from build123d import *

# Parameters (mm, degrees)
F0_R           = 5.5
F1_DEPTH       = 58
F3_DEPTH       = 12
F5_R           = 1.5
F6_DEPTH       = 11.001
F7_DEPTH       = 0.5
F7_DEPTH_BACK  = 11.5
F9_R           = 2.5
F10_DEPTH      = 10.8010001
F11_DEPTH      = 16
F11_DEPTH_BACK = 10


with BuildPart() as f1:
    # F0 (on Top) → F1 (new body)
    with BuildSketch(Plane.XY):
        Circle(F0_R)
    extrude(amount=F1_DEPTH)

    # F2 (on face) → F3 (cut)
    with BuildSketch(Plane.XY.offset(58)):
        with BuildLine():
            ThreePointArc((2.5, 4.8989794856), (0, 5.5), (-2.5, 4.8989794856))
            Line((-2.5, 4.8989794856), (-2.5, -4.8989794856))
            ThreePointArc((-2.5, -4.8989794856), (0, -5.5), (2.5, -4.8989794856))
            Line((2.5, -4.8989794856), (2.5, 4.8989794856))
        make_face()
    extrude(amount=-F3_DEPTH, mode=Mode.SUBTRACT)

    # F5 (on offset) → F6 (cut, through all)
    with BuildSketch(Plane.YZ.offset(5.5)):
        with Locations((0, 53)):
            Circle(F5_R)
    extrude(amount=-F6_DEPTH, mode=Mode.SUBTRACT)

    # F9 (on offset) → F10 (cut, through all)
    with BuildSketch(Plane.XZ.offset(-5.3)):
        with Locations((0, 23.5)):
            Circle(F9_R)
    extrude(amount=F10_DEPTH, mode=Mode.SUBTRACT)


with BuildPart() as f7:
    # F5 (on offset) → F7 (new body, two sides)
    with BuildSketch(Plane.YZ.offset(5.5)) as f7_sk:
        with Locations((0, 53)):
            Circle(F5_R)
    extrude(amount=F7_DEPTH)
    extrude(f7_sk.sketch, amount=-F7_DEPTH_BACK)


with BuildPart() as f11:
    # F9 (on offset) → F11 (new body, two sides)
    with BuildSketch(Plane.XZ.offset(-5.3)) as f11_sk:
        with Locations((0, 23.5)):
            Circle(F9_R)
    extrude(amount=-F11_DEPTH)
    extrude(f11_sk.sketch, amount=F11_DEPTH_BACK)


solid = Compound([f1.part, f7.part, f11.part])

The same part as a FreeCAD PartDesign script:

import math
import FreeCAD as App
import Part
import Sketcher
from FreeCAD import Vector
Q = App.Units.Quantity

doc = App.newDocument("Part")
body = doc.addObject("PartDesign::Body", "Body")

sketch1 = body.newObject("Sketcher::SketchObject", "Sketch")
sketch1.AttachmentSupport = (doc.getObject("XY_Plane"), [""])
sketch1.MapMode = "FlatFace"
sketch1.addGeometry(Part.Circle(Vector(0, 0, 0), Vector(0, 0, 1), 6), False)
sketch1.addConstraint([
    Sketcher.Constraint("Coincident", 0, 3, -1, 1),
    Sketcher.Constraint("Diameter", 0, Q("11 mm")),
])
pad1 = body.newObject("PartDesign::Pad", "Pad")
pad1.Profile = sketch1
pad1.Length = 58

sketch2 = body.newObject("Sketcher::SketchObject", "Sketch001")
sketch2.AttachmentSupport = (doc.getObject("XY_Plane"), [""])
sketch2.MapMode = "FlatFace"
sketch2.AttachmentOffset = App.Placement(Vector(0, 0, 58), App.Rotation())
sketch2.addGeometry([
    Part.ArcOfCircle(Part.Circle(Vector(0, 0, 0), Vector(0, 0, 1), 6), math.radians(63), math.radians(117)),
    Part.LineSegment(Vector(-2, 5, 0), Vector(-2, -5, 0)),
    Part.ArcOfCircle(Part.Circle(Vector(0, 0, 0), Vector(0, 0, 1), 6), math.radians(-117), math.radians(-63)),
    Part.LineSegment(Vector(2, -5, 0), Vector(2, 5, 0)),
], False)
sketch2.addConstraint([
    Sketcher.Constraint("Coincident", 0, 2, 1, 1),
    Sketcher.Constraint("Coincident", 1, 2, 2, 1),
    Sketcher.Constraint("Coincident", 2, 2, 3, 1),
    Sketcher.Constraint("Coincident", 3, 2, 0, 1),
    Sketcher.Constraint("Vertical", 1),
    Sketcher.Constraint("Vertical", 3),
    Sketcher.Constraint("Coincident", 0, 3, -1, 1),
    Sketcher.Constraint("Coincident", 2, 3, -1, 1),
    Sketcher.Constraint("Equal", 0, 2),
    Sketcher.Constraint("Horizontal", 1, 2, 2, 2),
    Sketcher.Constraint("Radius", 0, Q("5.5 mm")),
    Sketcher.Constraint("DistanceX", 1, 2, 2, 2, Q("5 mm")),
])
pocket1 = body.newObject("PartDesign::Pocket", "Pocket")
pocket1.Profile = sketch2
pocket1.Length = 12

sketch3 = body.newObject("Sketcher::SketchObject", "Sketch002")
sketch3.AttachmentSupport = (doc.getObject("YZ_Plane"), [""])
sketch3.MapMode = "FlatFace"
sketch3.AttachmentOffset = App.Placement(Vector(0, 0, 5.5), App.Rotation())
sketch3.addGeometry(Part.Circle(Vector(0, 53, 0), Vector(0, 0, 1), 1.5), False)
sketch3.addConstraint([
    Sketcher.Constraint("PointOnObject", 0, 3, -2),
    Sketcher.Constraint("Diameter", 0, Q("3 mm")),
    Sketcher.Constraint("DistanceY", -1, 1, 0, 3, Q("53 mm")),
])
pocket2 = body.newObject("PartDesign::Pocket", "Pocket001")
pocket2.Profile = sketch3
pocket2.Type = "ThroughAll"

sketch4 = body.newObject("Sketcher::SketchObject", "Sketch003")
sketch4.AttachmentSupport = (doc.getObject("XZ_Plane"), [""])
sketch4.MapMode = "FlatFace"
sketch4.AttachmentOffset = App.Placement(Vector(0, 0, -5.3), App.Rotation())
sketch4.addGeometry(Part.Circle(Vector(0, 23.5, 0), Vector(0, 0, 1), 2.5), False)
sketch4.addConstraint([
    Sketcher.Constraint("PointOnObject", 0, 3, -2),
    Sketcher.Constraint("Diameter", 0, Q("5 mm")),
    Sketcher.Constraint("DistanceY", -1, 1, 0, 3, Q("23.5 mm")),
])
pocket3 = body.newObject("PartDesign::Pocket", "Pocket002")
pocket3.Profile = sketch4
pocket3.Type = "ThroughAll"
pocket3.Reversed = True
body2 = doc.addObject("PartDesign::Body", "Body001")

sketch5 = body2.newObject("Sketcher::SketchObject", "Sketch004")
sketch5.AttachmentSupport = (doc.getObject("YZ_Plane001"), [""])
sketch5.MapMode = "FlatFace"
sketch5.AttachmentOffset = App.Placement(Vector(0, 0, 5.5), App.Rotation())
sketch5.addGeometry(Part.Circle(Vector(0, 53, 0), Vector(0, 0, 1), 1.5), False)
sketch5.addConstraint([
    Sketcher.Constraint("PointOnObject", 0, 3, -2),
    Sketcher.Constraint("Diameter", 0, Q("3 mm")),
    Sketcher.Constraint("DistanceY", -1, 1, 0, 3, Q("53 mm")),
])
pad2 = body2.newObject("PartDesign::Pad", "Pad001")
pad2.Profile = sketch5
pad2.Type = "TwoLengths"
pad2.Length = 0.5
pad2.Length2 = 11.5
body3 = doc.addObject("PartDesign::Body", "Body002")

sketch6 = body3.newObject("Sketcher::SketchObject", "Sketch005")
sketch6.AttachmentSupport = (doc.getObject("XZ_Plane002"), [""])
sketch6.MapMode = "FlatFace"
sketch6.AttachmentOffset = App.Placement(Vector(0, 0, -5.3), App.Rotation())
sketch6.addGeometry(Part.Circle(Vector(0, 23.5, 0), Vector(0, 0, 1), 2.5), False)
sketch6.addConstraint([
    Sketcher.Constraint("PointOnObject", 0, 3, -2),
    Sketcher.Constraint("Diameter", 0, Q("5 mm")),
    Sketcher.Constraint("DistanceY", -1, 1, 0, 3, Q("23.5 mm")),
])
pad3 = body3.newObject("PartDesign::Pad", "Pad002")
pad3.Profile = sketch6
pad3.Type = "TwoLengths"
pad3.Length = 16
pad3.Length2 = 10
pad3.Reversed = True

doc.recompute()
